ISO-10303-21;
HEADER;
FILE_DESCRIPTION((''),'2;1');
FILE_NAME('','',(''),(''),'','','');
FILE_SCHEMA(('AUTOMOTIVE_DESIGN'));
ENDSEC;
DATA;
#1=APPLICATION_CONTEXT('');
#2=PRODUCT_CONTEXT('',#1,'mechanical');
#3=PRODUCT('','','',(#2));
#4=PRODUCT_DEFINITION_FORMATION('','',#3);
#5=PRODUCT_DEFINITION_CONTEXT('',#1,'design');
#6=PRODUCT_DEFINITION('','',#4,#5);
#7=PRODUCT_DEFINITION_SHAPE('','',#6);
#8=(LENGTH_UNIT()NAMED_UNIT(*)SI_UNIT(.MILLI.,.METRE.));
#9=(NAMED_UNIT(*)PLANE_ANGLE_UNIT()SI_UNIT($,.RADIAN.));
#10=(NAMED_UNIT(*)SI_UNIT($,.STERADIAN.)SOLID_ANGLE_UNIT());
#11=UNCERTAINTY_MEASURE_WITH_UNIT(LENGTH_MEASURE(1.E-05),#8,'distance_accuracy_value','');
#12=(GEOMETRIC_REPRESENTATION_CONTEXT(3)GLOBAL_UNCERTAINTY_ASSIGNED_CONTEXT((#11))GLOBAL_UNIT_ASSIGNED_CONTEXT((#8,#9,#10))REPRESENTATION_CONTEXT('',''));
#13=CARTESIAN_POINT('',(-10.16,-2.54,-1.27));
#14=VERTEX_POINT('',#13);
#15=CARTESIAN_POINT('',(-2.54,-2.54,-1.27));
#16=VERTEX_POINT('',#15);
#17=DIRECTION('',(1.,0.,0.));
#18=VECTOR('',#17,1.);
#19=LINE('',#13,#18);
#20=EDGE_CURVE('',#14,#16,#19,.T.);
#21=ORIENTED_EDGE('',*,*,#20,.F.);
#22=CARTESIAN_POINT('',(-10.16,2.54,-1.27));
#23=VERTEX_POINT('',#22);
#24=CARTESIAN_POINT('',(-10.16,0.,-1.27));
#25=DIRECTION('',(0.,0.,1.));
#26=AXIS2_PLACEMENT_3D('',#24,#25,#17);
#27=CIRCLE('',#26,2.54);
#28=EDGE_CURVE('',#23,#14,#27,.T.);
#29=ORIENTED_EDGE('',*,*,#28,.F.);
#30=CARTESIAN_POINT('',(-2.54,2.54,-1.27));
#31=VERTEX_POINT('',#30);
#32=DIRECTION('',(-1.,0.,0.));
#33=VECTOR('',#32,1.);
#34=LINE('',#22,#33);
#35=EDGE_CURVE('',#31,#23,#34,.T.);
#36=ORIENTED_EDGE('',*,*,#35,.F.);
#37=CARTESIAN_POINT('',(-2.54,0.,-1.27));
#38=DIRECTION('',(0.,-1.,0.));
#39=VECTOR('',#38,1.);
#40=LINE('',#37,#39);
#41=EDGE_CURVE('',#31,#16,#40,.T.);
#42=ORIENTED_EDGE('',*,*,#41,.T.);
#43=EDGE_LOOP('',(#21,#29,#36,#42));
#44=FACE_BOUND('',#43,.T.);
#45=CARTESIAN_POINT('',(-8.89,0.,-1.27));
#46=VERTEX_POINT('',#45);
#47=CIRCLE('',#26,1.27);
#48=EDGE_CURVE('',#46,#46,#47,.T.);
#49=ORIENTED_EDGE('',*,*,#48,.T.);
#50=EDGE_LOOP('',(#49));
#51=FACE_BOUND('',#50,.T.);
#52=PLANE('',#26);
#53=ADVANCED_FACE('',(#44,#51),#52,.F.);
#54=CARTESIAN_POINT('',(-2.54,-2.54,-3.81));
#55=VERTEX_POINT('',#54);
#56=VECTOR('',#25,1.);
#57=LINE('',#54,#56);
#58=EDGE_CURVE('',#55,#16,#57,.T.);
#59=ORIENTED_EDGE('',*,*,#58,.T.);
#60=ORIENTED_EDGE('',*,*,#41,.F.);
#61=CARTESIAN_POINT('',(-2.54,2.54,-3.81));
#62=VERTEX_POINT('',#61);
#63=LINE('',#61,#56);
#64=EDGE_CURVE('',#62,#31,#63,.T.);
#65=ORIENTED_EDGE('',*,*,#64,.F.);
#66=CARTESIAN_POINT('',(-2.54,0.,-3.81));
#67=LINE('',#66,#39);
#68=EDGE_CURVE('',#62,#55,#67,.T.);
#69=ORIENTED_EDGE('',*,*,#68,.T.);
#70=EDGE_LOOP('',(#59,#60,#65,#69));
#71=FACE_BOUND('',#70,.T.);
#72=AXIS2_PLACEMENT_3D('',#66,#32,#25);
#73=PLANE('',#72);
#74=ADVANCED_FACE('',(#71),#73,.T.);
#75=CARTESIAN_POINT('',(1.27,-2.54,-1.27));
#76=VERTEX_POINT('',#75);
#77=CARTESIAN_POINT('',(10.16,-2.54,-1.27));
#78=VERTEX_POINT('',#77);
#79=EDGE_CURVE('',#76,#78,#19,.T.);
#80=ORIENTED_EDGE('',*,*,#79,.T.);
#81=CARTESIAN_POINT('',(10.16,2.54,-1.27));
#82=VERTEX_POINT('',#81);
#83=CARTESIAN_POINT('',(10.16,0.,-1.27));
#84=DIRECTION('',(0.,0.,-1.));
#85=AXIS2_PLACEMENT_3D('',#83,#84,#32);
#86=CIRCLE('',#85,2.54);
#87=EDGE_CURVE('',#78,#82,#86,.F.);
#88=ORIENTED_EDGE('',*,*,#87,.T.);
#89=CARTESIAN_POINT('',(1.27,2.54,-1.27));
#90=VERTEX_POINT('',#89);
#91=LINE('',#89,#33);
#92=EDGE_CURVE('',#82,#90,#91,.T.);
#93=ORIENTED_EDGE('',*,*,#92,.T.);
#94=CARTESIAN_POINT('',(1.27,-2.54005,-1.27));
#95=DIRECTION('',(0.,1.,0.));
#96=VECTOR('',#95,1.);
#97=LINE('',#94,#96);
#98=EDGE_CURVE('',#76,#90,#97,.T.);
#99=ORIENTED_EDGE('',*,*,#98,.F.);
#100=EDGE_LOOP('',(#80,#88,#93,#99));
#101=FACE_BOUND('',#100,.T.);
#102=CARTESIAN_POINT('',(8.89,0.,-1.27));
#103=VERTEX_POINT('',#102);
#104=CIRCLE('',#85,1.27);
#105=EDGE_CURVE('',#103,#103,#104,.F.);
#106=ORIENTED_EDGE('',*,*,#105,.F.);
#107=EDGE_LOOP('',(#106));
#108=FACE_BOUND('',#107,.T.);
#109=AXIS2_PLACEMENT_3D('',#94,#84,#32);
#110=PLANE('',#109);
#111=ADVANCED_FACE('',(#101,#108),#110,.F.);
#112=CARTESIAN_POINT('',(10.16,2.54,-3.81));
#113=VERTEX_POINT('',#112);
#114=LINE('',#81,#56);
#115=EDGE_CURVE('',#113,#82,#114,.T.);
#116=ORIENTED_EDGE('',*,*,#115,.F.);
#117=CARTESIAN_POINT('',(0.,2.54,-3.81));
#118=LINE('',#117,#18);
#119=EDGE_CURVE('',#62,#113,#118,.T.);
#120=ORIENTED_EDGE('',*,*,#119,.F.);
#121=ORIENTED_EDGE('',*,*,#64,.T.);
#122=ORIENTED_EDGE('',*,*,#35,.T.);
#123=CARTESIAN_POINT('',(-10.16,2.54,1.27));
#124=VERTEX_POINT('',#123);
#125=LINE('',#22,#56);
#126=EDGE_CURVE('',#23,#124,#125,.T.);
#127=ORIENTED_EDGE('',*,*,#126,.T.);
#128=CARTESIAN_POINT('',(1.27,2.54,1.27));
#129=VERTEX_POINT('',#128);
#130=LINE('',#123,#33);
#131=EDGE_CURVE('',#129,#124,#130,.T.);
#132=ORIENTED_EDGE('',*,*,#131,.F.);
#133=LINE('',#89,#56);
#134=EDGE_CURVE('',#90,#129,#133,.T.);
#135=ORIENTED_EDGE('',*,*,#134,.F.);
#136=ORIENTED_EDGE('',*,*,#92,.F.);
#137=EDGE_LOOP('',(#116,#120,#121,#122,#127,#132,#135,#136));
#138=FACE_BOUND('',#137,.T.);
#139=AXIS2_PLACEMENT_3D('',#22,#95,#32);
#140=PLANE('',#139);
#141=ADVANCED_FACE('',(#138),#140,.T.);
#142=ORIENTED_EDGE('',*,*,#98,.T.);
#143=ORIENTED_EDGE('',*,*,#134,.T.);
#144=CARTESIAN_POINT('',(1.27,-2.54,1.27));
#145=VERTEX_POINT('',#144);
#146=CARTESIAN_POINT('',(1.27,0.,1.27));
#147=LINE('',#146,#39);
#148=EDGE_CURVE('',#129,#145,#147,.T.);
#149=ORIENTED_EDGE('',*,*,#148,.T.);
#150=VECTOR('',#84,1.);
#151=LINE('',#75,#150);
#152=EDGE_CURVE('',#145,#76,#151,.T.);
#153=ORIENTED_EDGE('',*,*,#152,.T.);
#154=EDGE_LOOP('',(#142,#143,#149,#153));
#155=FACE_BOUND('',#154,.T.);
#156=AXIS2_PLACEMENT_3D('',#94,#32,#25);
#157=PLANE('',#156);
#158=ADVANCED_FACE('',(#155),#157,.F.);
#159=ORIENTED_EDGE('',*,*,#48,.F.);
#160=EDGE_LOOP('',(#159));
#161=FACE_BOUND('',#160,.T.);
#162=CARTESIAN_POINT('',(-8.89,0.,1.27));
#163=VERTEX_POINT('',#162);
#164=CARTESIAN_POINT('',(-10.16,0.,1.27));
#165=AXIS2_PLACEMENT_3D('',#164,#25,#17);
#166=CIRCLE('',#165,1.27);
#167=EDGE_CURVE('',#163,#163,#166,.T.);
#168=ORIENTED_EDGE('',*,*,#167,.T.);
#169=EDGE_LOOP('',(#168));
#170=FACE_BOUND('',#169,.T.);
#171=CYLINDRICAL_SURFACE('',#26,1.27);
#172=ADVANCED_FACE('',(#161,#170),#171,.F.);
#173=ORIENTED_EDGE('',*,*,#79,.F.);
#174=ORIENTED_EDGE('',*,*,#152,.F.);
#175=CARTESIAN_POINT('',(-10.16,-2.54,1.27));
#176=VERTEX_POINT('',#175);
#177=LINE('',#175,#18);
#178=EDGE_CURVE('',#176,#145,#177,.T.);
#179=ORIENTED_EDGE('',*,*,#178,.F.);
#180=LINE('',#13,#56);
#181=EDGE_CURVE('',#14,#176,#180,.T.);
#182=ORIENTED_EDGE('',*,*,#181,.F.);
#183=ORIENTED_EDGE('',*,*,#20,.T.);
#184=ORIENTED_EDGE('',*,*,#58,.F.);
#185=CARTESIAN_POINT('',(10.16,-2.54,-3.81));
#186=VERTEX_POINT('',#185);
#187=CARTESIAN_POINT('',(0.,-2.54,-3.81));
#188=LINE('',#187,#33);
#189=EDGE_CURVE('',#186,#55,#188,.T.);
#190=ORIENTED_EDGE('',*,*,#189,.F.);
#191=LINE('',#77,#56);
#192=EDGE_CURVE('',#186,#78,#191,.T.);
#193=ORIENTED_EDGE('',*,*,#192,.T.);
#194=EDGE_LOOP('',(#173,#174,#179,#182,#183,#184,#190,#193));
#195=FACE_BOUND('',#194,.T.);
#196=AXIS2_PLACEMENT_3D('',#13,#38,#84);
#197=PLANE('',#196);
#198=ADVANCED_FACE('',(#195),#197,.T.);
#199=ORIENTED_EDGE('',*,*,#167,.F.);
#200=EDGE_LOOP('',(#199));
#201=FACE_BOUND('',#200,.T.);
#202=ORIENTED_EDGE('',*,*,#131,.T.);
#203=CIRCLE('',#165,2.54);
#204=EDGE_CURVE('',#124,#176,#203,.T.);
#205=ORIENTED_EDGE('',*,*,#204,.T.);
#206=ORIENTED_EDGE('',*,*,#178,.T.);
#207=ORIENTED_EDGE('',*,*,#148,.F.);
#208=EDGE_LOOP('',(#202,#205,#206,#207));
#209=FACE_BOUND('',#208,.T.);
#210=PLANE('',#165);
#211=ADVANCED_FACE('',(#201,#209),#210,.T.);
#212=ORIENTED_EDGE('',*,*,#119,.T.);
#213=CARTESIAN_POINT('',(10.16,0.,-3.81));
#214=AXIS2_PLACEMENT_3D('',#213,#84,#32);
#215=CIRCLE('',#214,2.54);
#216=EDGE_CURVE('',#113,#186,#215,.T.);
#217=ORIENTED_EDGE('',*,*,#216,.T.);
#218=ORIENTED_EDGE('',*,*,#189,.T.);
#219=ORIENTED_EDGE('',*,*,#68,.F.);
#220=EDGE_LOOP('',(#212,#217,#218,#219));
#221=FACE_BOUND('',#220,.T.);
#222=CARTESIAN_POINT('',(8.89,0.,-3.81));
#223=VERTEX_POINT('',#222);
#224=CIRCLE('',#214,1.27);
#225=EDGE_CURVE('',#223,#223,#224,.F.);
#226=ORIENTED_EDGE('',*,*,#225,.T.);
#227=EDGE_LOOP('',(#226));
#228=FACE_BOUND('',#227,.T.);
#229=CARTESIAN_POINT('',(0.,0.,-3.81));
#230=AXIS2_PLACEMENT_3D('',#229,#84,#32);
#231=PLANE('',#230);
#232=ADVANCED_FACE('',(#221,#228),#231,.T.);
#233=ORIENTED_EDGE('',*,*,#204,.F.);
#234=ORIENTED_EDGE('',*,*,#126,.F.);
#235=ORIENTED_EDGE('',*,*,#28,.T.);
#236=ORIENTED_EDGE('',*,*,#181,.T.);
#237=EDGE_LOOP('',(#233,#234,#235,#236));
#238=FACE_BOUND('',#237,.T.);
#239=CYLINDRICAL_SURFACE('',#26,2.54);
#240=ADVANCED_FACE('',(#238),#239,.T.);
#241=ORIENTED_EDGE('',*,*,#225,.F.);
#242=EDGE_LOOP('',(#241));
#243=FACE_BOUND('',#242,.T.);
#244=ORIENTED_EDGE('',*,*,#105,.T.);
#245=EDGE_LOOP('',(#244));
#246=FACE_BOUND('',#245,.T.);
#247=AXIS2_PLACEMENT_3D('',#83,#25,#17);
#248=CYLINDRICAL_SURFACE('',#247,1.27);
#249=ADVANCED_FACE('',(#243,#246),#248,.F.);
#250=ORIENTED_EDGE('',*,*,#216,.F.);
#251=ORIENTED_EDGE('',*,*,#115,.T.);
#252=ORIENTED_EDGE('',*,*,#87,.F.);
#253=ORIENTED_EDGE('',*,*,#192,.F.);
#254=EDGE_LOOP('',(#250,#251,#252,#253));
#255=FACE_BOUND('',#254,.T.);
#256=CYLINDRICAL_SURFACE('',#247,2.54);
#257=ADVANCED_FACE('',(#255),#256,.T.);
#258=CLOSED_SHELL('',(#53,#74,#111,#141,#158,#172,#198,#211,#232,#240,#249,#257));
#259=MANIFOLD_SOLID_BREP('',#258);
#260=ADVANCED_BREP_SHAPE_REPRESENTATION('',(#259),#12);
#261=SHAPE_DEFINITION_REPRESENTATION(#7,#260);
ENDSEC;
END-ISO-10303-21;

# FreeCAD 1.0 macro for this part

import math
import FreeCAD as App
import Part
import Sketcher
Q = App.Units.Quantity

doc = App.newDocument("Part")
body = doc.addObject("PartDesign::Body", "Body")

# Sketch on XY plane
sketch1 = body.newObject("Sketcher::SketchObject", "Sketch")
sketch1.AttachmentSupport = (doc.getObject("XY_Plane"), [""])
sketch1.MapMode = "FlatFace"
sketch1.addGeometry([
    Part.LineSegment(App.Vector(10.2, 2.5, 0), App.Vector(-10.2, 2.5, 0)),  # 0
    Part.ArcOfCircle(Part.Circle(App.Vector(-10.2, 0, 0), App.Vector(0, 0, 1), 2.5), math.radians(90), math.radians(270)),  # 1
    Part.LineSegment(App.Vector(-10.2, -2.5, 0), App.Vector(10.2, -2.5, 0)),  # 2
    Part.ArcOfCircle(Part.Circle(App.Vector(10.2, 0, 0), App.Vector(0, 0, 1), 2.5), math.radians(-90), math.radians(90)),  # 3
    Part.Circle(App.Vector(10.2, 0, 0), App.Vector(0, 0, 1), 1.3),  # 4
    Part.Circle(App.Vector(-10.2, 0, 0), App.Vector(0, 0, 1), 1.3),  # 5
], False)
sketch1.addConstraint([
    Sketcher.Constraint("Tangent", 0, 2, 1, 1),
    Sketcher.Constraint("Tangent", 1, 2, 2, 1),
    Sketcher.Constraint("Tangent", 2, 2, 3, 1),
    Sketcher.Constraint("Tangent", 3, 2, 0, 1),
    Sketcher.Constraint("Horizontal", 0),
    Sketcher.Constraint("Horizontal", 2),
    Sketcher.Constraint("Coincident", 4, 3, 3, 3),
    Sketcher.Constraint("Coincident", 5, 3, 1, 3),
    Sketcher.Constraint("Equal", 4, 5),
    Sketcher.Constraint("Symmetric", 1, 3, 3, 3, -1, 1),
    Sketcher.Constraint("Diameter", 4, Q("0.1 in")),
    Sketcher.Constraint("Radius", 1, Q("0.1 in")),
    Sketcher.Constraint("DistanceX", 0, 2, 0, 1, Q("0.8 in")),
])
pad1 = body.newObject("PartDesign::Pad", "Pad")
pad1.Profile = sketch1
pad1.Type = "TwoLengths"
pad1.Length = Q("0.05 in")
pad1.Length2 = Q("0.05 in")

# Sketch on XY plane
sketch2 = body.newObject("Sketcher::SketchObject", "Sketch001")
sketch2.AttachmentSupport = (doc.getObject("XY_Plane"), [""])
sketch2.MapMode = "FlatFace"
sketch2.AttachmentOffset = App.Placement(App.Vector(0, 0, -0.15 * 25.4), App.Rotation())
sketch2.addGeometry([
    Part.LineSegment(App.Vector(-2.5, -2.5, 0), App.Vector(-2.5, 2.5, 0)),  # 0
    Part.LineSegment(App.Vector(-2.5, 2.5, 0), App.Vector(10.2, 2.5, 0)),  # 1
    Part.ArcOfCircle(Part.Circle(App.Vector(10.2, 0, 0), App.Vector(0, 0, 1), 2.5), math.radians(-90), math.radians(90)),  # 2
    Part.LineSegment(App.Vector(10.2, -2.5, 0), App.Vector(-2.5, -2.5, 0)),  # 3
    Part.Circle(App.Vector(10.2, 0, 0), App.Vector(0, 0, 1), 1.3),  # 4
], False)
sketch2.addConstraint([
    Sketcher.Constraint("Coincident", 0, 2, 1, 1),
    Sketcher.Constraint("Tangent", 1, 2, 2, 2),
    Sketcher.Constraint("Tangent", 2, 1, 3, 1),
    Sketcher.Constraint("Coincident", 3, 2, 0, 1),
    Sketcher.Constraint("Vertical", 0),
    Sketcher.Constraint("Horizontal", 1),
    Sketcher.Constraint("Horizontal", 3),
    Sketcher.Constraint("Coincident", 4, 3, 2, 3),
    Sketcher.Constraint("PointOnObject", 2, 3, -1),
    Sketcher.Constraint("Diameter", 4, Q("0.1 in")),
    Sketcher.Constraint("Radius", 2, Q("0.1 in")),
    Sketcher.Constraint("DistanceX", 1, 1, 1, 2, Q("0.5 in")),
    Sketcher.Constraint("DistanceX", -1, 1, 2, 3, Q("0.4 in")),
])
pad2 = body.newObject("PartDesign::Pad", "Pad001")
pad2.Profile = sketch2
pad2.Length = Q("0.1 in")

# Sketch on XZ plane
sketch3 = body.newObject("Sketcher::SketchObject", "Sketch002")
sketch3.AttachmentSupport = (doc.getObject("XZ_Plane"), [""])
sketch3.MapMode = "FlatFace"
sketch3.AttachmentOffset = App.Placement(App.Vector(0, 0, -0.1 * 25.4), App.Rotation())
sketch3.addGeometry([
    Part.LineSegment(App.Vector(1.3, -1.3, 0), App.Vector(1.3, 1.3, 0)),
    Part.LineSegment(App.Vector(1.3, 1.3, 0), App.Vector(12.7, 1.3, 0)),
    Part.LineSegment(App.Vector(12.7, 1.3, 0), App.Vector(12.7, -1.3, 0)),
    Part.LineSegment(App.Vector(12.7, -1.3, 0), App.Vector(1.3, -1.3, 0)),
], False)
sketch3.addConstraint([
    Sketcher.Constraint("Coincident", 0, 2, 1, 1),
    Sketcher.Constraint("Coincident", 1, 2, 2, 1),
    Sketcher.Constraint("Coincident", 2, 2, 3, 1),
    Sketcher.Constraint("Coincident", 3, 2, 0, 1),
    Sketcher.Constraint("Vertical", 0),
    Sketcher.Constraint("Horizontal", 1),
    Sketcher.Constraint("Vertical", 2),
    Sketcher.Constraint("Horizontal", 3),
    Sketcher.Constraint("DistanceY", 0, 1, 0, 2, Q("0.1 in")),
    Sketcher.Constraint("DistanceX", 1, 1, 1, 2, Q("0.45 in")),
    Sketcher.Constraint("DistanceX", -1, 1, 1, 2, Q("0.5 in")),
    Sketcher.Constraint("DistanceY", -1, 1, 0, 2, Q("0.05 in")),
])
pocket1 = body.newObject("PartDesign::Pocket", "Pocket")
pocket1.Profile = sketch3
pocket1.Type = "ThroughAll"
pocket1.Reversed = True

doc.recompute()
